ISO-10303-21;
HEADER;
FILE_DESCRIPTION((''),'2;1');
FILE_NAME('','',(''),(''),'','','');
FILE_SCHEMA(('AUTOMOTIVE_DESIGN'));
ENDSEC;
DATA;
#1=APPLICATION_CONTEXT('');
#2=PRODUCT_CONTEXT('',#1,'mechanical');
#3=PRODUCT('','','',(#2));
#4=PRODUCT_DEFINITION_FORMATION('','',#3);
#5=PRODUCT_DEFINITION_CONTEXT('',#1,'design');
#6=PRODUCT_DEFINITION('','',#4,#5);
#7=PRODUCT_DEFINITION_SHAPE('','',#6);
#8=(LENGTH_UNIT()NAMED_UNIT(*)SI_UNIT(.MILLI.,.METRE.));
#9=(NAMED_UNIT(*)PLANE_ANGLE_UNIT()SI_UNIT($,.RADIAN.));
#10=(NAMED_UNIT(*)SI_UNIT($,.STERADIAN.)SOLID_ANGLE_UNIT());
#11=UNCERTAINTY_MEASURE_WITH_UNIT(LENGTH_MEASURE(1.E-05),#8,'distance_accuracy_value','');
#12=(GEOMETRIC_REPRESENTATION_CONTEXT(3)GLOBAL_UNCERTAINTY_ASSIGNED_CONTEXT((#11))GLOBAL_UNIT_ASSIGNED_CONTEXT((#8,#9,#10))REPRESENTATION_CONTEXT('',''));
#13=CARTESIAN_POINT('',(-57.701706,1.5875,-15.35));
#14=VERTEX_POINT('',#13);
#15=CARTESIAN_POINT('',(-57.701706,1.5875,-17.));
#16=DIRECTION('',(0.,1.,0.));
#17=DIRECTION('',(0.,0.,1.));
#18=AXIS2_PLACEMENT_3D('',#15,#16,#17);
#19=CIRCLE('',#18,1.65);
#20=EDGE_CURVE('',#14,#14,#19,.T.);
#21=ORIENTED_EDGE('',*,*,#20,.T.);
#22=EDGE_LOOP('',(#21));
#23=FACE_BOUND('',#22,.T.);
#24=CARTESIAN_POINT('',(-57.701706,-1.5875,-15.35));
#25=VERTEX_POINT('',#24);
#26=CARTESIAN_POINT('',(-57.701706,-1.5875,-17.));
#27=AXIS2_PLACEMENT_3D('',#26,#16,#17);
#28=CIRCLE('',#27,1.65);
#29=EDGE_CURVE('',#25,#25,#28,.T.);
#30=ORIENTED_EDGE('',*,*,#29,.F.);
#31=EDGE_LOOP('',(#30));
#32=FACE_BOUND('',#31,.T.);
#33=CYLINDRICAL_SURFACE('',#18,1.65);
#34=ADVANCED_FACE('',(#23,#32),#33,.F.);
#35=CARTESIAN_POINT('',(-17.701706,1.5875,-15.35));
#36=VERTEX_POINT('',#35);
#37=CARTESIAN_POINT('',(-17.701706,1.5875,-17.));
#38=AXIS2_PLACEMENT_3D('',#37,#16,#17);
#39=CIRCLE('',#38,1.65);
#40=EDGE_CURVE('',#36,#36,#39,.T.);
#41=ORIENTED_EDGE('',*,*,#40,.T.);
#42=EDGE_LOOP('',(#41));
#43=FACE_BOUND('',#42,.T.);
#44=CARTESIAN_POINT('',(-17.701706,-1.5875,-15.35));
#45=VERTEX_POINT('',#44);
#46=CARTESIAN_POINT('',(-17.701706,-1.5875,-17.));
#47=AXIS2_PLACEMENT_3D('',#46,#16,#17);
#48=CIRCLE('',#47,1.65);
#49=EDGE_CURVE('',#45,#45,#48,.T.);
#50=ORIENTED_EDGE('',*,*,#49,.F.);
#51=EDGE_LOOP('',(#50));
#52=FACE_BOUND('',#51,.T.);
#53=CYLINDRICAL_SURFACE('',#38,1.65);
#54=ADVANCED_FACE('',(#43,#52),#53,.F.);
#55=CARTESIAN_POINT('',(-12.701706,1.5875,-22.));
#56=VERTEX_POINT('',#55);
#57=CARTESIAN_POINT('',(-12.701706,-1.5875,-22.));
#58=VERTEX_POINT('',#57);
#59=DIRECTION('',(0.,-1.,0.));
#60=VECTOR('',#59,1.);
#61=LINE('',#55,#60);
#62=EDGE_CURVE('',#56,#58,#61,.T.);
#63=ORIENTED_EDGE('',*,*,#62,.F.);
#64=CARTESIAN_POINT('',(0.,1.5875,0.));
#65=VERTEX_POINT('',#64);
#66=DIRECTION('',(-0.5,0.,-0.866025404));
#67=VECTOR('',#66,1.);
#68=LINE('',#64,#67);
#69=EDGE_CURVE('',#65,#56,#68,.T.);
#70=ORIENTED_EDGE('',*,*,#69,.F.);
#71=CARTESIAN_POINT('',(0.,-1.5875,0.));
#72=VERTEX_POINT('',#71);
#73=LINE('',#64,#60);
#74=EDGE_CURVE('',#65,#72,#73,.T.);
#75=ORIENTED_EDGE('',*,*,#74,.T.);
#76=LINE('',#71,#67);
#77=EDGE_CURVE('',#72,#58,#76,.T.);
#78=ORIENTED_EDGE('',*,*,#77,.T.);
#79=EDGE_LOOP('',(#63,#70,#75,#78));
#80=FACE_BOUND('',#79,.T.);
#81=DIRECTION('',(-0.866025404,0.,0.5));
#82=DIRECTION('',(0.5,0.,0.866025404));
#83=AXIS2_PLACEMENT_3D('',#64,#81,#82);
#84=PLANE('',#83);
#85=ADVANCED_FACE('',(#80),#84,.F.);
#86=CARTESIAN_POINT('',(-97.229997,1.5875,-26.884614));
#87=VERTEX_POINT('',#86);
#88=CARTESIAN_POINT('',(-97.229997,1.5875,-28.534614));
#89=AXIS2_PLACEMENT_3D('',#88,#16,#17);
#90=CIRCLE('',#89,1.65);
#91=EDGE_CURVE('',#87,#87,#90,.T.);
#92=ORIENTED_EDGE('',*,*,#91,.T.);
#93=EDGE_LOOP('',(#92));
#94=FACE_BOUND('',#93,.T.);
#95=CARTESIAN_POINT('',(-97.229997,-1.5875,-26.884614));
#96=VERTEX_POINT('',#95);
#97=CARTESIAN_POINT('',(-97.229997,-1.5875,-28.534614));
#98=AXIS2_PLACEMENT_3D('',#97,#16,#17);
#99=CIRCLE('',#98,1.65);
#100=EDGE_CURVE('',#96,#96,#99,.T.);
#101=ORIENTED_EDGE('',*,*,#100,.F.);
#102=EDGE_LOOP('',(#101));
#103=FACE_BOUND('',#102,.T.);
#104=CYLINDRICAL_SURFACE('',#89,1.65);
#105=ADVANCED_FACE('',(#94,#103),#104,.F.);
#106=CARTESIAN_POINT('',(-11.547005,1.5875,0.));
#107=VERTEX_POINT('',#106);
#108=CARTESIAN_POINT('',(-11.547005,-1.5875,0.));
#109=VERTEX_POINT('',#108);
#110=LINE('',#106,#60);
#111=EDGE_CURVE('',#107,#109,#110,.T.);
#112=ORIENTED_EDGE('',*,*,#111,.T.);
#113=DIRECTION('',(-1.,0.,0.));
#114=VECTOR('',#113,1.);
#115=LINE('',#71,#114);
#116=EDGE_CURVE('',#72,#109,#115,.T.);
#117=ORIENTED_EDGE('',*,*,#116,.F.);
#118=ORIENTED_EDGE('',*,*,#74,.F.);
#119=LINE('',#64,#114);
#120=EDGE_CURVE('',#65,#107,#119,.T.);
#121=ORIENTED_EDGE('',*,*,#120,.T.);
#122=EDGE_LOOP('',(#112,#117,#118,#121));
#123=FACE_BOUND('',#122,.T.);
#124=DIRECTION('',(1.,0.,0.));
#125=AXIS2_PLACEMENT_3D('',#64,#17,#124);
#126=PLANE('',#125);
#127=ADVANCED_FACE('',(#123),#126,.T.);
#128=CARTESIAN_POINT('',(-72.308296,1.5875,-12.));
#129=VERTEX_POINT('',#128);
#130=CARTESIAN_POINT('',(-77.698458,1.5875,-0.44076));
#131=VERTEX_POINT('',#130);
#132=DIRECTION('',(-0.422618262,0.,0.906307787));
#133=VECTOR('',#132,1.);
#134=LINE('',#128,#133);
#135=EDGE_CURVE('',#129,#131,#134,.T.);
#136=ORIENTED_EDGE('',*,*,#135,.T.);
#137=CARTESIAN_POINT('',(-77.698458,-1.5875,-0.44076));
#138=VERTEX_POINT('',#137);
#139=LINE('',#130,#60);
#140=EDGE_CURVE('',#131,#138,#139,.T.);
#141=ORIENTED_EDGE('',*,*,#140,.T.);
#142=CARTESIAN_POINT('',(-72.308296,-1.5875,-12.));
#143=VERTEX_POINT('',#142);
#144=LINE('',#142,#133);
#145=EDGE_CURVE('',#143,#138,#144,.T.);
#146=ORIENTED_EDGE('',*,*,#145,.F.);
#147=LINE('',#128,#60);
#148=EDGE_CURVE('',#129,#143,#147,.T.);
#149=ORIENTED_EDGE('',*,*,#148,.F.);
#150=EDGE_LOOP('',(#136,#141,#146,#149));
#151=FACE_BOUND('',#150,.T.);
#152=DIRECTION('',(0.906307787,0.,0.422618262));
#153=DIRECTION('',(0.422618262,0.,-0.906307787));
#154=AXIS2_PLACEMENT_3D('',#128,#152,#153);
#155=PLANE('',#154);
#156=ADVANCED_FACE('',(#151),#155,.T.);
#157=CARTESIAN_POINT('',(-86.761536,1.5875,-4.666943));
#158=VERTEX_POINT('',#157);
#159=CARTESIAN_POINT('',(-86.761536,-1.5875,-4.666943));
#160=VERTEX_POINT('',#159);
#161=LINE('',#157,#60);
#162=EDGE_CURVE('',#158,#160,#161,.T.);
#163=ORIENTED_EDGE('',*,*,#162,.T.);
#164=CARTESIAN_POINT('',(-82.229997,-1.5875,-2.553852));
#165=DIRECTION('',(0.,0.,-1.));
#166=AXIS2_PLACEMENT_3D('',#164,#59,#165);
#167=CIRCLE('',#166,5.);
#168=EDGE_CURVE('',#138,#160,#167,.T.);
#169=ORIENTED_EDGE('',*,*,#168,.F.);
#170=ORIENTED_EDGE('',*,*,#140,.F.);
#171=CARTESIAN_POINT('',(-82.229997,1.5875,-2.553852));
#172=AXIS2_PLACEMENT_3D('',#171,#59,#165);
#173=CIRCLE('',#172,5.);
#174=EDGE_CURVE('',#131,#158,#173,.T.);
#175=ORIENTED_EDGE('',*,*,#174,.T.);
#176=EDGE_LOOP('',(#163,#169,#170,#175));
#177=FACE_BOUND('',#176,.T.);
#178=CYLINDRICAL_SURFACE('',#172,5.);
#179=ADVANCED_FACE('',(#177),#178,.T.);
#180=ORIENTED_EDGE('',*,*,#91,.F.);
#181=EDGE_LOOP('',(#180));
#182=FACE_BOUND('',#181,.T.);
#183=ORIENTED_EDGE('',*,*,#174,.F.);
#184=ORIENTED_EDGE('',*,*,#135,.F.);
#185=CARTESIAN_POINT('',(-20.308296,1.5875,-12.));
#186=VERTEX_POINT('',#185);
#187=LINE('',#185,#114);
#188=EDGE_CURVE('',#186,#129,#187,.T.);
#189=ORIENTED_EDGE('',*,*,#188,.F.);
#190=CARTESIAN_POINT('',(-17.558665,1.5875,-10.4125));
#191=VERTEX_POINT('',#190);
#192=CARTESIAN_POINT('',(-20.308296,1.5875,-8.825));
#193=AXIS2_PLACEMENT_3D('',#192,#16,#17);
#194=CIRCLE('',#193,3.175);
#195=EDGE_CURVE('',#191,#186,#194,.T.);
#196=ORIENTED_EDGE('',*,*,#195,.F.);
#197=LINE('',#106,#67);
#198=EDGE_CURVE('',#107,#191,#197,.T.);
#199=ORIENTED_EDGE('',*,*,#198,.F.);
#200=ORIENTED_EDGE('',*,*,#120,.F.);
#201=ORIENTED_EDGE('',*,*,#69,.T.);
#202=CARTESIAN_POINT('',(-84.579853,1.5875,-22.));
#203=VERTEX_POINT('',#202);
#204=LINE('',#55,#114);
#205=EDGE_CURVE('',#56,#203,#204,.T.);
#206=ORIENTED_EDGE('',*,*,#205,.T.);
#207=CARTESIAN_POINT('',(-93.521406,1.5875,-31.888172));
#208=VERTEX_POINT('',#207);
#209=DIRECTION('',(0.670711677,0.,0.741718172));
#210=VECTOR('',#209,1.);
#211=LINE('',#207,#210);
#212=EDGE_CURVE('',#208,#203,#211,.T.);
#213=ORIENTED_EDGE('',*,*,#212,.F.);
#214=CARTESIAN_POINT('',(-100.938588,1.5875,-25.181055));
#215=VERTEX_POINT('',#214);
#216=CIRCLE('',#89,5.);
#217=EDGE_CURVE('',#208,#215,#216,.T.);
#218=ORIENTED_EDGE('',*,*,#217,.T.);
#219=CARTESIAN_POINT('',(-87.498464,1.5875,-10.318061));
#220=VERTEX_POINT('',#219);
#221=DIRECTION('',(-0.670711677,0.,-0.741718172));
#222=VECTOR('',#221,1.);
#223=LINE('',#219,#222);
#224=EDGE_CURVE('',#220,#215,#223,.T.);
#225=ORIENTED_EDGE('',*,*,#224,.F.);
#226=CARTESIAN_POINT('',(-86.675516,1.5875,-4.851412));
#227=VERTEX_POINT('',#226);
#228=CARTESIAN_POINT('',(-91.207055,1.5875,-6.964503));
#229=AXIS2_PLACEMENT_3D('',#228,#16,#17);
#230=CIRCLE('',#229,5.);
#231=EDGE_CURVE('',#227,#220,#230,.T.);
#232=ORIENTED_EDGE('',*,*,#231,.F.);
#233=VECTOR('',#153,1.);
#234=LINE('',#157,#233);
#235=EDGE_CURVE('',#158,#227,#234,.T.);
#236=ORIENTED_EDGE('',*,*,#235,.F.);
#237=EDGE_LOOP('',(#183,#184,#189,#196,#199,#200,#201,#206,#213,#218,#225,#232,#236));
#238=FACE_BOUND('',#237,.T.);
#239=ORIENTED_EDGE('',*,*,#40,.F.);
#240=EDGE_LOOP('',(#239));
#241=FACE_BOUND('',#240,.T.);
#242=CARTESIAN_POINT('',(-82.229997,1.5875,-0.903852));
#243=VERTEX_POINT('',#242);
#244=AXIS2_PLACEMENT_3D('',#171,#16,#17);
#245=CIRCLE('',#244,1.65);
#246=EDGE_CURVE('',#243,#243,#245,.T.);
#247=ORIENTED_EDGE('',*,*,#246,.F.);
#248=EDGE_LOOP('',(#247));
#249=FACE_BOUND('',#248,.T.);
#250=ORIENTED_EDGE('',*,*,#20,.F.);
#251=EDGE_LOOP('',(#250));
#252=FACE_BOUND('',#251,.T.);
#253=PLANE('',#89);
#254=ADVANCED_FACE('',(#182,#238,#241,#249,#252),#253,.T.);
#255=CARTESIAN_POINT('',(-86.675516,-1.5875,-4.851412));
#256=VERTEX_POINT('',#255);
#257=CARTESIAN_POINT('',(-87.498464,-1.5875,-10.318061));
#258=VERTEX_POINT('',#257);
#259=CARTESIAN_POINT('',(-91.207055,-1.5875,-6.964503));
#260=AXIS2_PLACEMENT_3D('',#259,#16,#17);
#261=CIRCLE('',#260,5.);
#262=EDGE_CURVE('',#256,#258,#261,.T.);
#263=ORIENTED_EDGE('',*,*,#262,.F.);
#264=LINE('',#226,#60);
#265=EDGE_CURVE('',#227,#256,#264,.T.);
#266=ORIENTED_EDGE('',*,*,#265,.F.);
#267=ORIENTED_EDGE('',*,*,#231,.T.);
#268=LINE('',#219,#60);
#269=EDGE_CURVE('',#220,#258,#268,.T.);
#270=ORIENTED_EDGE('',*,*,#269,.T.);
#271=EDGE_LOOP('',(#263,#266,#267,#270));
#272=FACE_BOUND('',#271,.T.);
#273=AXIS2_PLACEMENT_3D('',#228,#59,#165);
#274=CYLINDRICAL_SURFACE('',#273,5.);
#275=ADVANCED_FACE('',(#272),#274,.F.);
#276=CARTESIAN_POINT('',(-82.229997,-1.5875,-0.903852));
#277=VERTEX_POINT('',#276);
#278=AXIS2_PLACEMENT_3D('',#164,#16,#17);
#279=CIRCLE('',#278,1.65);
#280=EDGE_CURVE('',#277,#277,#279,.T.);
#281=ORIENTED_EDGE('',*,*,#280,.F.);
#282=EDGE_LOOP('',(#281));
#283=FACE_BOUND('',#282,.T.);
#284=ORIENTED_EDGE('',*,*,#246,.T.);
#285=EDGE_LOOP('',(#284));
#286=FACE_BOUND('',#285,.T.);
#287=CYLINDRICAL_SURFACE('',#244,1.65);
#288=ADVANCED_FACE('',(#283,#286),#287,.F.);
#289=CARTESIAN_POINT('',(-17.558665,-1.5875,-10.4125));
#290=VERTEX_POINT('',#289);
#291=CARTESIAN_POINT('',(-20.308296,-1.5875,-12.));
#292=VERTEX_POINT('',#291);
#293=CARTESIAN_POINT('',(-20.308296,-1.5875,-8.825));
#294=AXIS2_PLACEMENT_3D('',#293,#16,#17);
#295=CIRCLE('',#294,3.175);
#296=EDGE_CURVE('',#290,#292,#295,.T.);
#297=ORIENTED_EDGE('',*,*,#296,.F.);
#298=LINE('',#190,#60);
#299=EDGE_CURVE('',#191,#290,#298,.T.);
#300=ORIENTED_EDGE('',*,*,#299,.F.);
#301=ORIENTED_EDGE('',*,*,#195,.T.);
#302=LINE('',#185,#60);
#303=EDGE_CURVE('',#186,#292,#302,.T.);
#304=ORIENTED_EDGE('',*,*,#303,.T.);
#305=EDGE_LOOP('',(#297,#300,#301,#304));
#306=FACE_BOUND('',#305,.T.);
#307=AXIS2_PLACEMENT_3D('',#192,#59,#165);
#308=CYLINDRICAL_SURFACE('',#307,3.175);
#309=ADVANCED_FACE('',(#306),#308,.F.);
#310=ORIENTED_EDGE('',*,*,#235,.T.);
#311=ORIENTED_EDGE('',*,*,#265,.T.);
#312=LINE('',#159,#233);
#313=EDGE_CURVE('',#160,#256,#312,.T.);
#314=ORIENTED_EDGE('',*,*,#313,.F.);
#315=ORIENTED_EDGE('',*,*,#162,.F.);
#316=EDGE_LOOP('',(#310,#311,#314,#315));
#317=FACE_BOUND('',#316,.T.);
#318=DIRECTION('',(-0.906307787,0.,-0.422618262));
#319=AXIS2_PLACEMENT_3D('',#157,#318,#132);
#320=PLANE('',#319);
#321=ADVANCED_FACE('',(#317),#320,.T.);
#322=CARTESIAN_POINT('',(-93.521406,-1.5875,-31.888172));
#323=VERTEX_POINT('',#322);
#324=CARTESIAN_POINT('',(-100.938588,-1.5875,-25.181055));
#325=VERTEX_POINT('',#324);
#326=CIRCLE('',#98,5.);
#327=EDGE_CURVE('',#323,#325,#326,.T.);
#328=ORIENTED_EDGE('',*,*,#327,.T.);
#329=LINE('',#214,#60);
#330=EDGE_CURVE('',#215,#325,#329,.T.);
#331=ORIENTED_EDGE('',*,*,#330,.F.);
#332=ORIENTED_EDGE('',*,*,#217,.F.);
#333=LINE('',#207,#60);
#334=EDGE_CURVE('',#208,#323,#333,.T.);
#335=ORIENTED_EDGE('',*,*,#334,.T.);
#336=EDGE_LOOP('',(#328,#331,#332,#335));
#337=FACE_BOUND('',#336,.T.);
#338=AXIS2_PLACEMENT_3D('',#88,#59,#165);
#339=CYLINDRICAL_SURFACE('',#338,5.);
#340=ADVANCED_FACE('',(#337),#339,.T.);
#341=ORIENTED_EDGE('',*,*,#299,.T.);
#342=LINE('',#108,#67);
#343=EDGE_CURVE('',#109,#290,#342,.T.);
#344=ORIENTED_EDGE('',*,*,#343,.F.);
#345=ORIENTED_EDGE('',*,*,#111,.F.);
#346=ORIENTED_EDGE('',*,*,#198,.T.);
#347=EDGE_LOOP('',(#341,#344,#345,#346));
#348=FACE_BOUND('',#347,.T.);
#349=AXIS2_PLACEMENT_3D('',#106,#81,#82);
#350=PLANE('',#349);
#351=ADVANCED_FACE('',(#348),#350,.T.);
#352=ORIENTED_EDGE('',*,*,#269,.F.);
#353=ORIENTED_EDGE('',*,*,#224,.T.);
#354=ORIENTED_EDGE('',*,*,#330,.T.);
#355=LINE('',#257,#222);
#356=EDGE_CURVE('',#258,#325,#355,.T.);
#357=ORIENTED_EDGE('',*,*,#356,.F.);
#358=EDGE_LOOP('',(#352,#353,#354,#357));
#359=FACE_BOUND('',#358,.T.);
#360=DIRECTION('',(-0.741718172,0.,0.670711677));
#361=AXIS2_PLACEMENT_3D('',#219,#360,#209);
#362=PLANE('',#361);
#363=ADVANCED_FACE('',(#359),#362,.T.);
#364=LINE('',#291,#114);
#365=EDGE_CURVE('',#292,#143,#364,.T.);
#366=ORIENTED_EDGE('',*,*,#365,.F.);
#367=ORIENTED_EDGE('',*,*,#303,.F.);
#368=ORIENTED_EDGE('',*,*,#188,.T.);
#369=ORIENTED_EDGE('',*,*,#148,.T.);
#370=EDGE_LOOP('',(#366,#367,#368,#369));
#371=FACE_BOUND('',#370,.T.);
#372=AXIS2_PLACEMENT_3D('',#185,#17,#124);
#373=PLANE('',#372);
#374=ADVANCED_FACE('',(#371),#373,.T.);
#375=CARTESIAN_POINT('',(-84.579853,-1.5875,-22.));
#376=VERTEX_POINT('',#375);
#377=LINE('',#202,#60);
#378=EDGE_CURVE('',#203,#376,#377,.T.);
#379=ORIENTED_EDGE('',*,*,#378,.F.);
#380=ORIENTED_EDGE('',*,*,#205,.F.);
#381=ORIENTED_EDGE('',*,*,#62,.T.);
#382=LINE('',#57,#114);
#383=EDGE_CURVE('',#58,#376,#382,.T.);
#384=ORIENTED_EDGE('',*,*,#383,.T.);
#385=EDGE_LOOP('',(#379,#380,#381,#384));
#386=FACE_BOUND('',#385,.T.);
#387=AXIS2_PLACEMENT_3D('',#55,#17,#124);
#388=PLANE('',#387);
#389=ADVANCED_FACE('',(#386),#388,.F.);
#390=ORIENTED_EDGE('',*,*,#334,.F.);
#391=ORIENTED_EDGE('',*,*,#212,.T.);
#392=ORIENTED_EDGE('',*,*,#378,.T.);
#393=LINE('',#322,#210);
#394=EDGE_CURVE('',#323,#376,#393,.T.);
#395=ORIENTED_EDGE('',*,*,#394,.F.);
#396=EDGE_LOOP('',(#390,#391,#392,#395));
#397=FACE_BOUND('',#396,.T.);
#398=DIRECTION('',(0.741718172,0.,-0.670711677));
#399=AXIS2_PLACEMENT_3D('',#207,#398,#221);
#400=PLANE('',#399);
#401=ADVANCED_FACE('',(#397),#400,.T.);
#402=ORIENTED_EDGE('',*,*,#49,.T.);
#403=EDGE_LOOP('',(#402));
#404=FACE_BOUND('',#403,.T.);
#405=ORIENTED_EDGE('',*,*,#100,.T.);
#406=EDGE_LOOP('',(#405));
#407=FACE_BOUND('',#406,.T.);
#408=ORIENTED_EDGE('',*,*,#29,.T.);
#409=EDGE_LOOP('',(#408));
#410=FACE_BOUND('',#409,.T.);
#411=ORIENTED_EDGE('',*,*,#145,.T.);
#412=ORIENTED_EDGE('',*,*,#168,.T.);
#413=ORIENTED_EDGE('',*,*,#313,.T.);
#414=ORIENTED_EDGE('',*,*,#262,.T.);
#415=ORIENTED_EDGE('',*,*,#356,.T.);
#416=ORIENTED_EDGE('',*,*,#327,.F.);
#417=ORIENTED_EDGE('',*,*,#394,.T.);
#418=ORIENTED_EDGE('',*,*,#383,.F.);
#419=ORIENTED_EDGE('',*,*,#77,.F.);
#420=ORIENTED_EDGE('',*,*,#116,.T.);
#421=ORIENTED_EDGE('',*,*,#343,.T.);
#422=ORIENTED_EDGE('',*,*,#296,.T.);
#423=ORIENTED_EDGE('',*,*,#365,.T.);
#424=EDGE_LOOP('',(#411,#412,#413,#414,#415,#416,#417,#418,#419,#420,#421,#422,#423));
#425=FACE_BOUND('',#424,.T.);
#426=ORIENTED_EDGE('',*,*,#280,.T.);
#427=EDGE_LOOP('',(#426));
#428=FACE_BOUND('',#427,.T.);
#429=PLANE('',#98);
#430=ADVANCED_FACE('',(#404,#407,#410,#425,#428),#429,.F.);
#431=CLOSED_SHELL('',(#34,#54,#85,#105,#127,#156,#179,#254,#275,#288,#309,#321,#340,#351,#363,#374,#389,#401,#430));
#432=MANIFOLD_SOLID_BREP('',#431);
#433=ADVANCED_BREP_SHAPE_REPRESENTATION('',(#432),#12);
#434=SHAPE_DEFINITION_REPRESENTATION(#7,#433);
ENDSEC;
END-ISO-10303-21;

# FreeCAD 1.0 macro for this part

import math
import FreeCAD as App
import Part
import Sketcher
Q = App.Units.Quantity

doc = App.newDocument("Part")
body = doc.addObject("PartDesign::Body", "Body")

# Sketch on XZ plane
sketch1 = body.newObject("Sketcher::SketchObject", "Sketch")
sketch1.AttachmentSupport = (doc.getObject("XZ_Plane"), [""])
sketch1.MapMode = "FlatFace"
sketch1.addGeometry([
    Part.LineSegment(App.Vector(-11.55, 0, 0), App.Vector(0, 0, 0)),  # 0
    Part.LineSegment(App.Vector(0, 0, 0), App.Vector(-12.7, -22, 0)),  # 1
    Part.LineSegment(App.Vector(-12.7, -22, 0), App.Vector(-84.58, -22, 0)),  # 2
    Part.LineSegment(App.Vector(-84.58, -22, 0), App.Vector(-93.52, -31.89, 0)),  # 3
    Part.ArcOfCircle(Part.Circle(App.Vector(-97.23, -28.53, 0), App.Vector(0, 0, 1), 5), math.radians(138), math.radians(318)),  # 4
    Part.LineSegment(App.Vector(-100.94, -25.18, 0), App.Vector(-87.5, -10.32, 0)),  # 5
    Part.ArcOfCircle(Part.Circle(App.Vector(-91.21, -6.96, 0), App.Vector(0, 0, 1), 5), math.radians(-42), math.radians(25)),  # 6
    Part.LineSegment(App.Vector(-86.68, -4.85, 0), App.Vector(-86.76, -4.67, 0)),  # 7
    Part.ArcOfCircle(Part.Circle(App.Vector(-82.23, -2.55, 0), App.Vector(0, 0, 1), 5), math.radians(25), math.radians(205)),  # 8
    Part.LineSegment(App.Vector(-77.7, -0.44, 0), App.Vector(-72.31, -12, 0)),  # 9
    Part.LineSegment(App.Vector(-72.31, -12, 0), App.Vector(-20.31, -12, 0)),  # 10
    Part.ArcOfCircle(Part.Circle(App.Vector(-20.31, -8.82, 0), App.Vector(0, 0, 1), 3.17), math.radians(-90), math.radians(-30)),  # 11
    Part.LineSegment(App.Vector(-17.56, -10.41, 0), App.Vector(-11.55, 0, 0)),  # 12
], False)
sketch1.addConstraint([
    Sketcher.Constraint("Coincident", 0, 2, 1, 1),
    Sketcher.Constraint("Coincident", 1, 2, 2, 1),
    Sketcher.Constraint("Coincident", 2, 2, 3, 1),
    Sketcher.Constraint("Tangent", 3, 2, 4, 2),
    Sketcher.Constraint("Tangent", 4, 1, 5, 1),
    Sketcher.Constraint("Tangent", 5, 2, 6, 1),
    Sketcher.Constraint("Tangent", 6, 2, 7, 1),
    Sketcher.Constraint("Tangent", 7, 2, 8, 2),
    Sketcher.Constraint("Tangent", 8, 1, 9, 1),
    Sketcher.Constraint("Coincident", 9, 2, 10, 1),
    Sketcher.Constraint("Tangent", 10, 2, 11, 1),
    Sketcher.Constraint("Tangent", 11, 2, 12, 1),
    Sketcher.Constraint("Coincident", 12, 2, 0, 1),
    Sketcher.Constraint("Horizontal", 0),
    Sketcher.Constraint("Horizontal", 2),
    Sketcher.Constraint("Horizontal", 10),
    Sketcher.Constraint("Coincident", 0, 2, -1, 1),
    Sketcher.Constraint("Equal", 4, 6),
    Sketcher.Constraint("Equal", 6, 8),
    Sketcher.Constraint("Parallel", 3, 5),
    Sketcher.Constraint("Parallel", 7, 9),
    Sketcher.Constraint("Parallel", 1, 12),
    Sketcher.Constraint("Radius", 4, 5.0),
    Sketcher.Constraint("DistanceX", 10, 1, 10, 2, 52.0),
    Sketcher.Constraint("Angle", 1, Q("-120 deg")),
    Sketcher.Constraint("Angle", 7, Q("115 deg")),
    Sketcher.Constraint("DistanceY", 1, 2, -1, 1, 22.0),
    Sketcher.Constraint("DistanceY", 9, 2, -1, 1, 12.0),
    Sketcher.Constraint("Radius", 11, 3.175),
    Sketcher.Constraint("DistanceX", 4, 3, 8, 3, 15.0),
    Sketcher.Constraint("Distance", 5, 20.0386),
    Sketcher.Constraint("DistanceX", 8, 3, 11, 3, 61.921701),
    Sketcher.Constraint("DistanceY", 5, 2, 8, 1, 9.877301),
    Sketcher.Constraint("DistanceX", 1, 2, 12, 2, 1.154701),
])
pad1 = body.newObject("PartDesign::Pad", "Pad")
pad1.Profile = sketch1
pad1.Length = 3.175
pad1.Midplane = True

# Sketch on XZ plane
sketch2 = body.newObject("Sketcher::SketchObject", "Sketch001")
sketch2.AttachmentSupport = (doc.getObject("XZ_Plane"), [""])
sketch2.MapMode = "FlatFace"
sketch2.AttachmentOffset = App.Placement(App.Vector(0, 0, -1.5875), App.Rotation())
sketch2.addGeometry([
    Part.Circle(App.Vector(-17.7, -17, 0), App.Vector(0, 0, 1), 1.6),
    Part.Circle(App.Vector(-57.7, -17, 0), App.Vector(0, 0, 1), 1.6),
], False)
sketch2.addConstraint([
    Sketcher.Constraint("Equal", 0, 1),
    Sketcher.Constraint("Horizontal", 0, 3, 1, 3),
    Sketcher.Constraint("Diameter", 0, 3.3),
    Sketcher.Constraint("DistanceY", 0, 3, -1, 1, 17.0),
    Sketcher.Constraint("DistanceX", 1, 3, 0, 3, 40.0),
    Sketcher.Constraint("DistanceX", 0, 3, -1, 1, 17.701706),
])
doc.recompute()
hole = body.newObject("PartDesign::Hole", "Hole")
hole.Profile = sketch2
hole.ThreadType = "None"
hole.Diameter = 3.3
hole.DepthType = "ThroughAll"
hole.Reversed = True

# Sketch on XZ plane
sketch3 = body.newObject("Sketcher::SketchObject", "Sketch002")
sketch3.AttachmentSupport = (doc.getObject("XZ_Plane"), [""])
sketch3.MapMode = "FlatFace"
sketch3.AttachmentOffset = App.Placement(App.Vector(0, 0, -1.5875), App.Rotation())
sketch3.addGeometry([
    Part.Circle(App.Vector(-82.2, -2.6, 0), App.Vector(0, 0, 1), 1.6),
    Part.Circle(App.Vector(-97.2, -28.5, 0), App.Vector(0, 0, 1), 1.6),
], False)
sketch3.addConstraint([
    Sketcher.Constraint("Equal", 0, 1),
    Sketcher.Constraint("Diameter", 0, 3.3),
    Sketcher.Constraint("DistanceX", 1, 3, 0, 3, 15.0),
    Sketcher.Constraint("DistanceY", 0, 3, -1, 1, 2.553852),
    Sketcher.Constraint("DistanceX", 0, 3, -1, 1, 82.229997),
    Sketcher.Constraint("DistanceY", 1, 3, -1, 1, 28.534614),
])
doc.recompute()
hole2 = body.newObject("PartDesign::Hole", "Hole001")
hole2.Profile = sketch3
hole2.ThreadType = "None"
hole2.Diameter = 3.3
hole2.DepthType = "ThroughAll"
hole2.Reversed = True

doc.recompute()
